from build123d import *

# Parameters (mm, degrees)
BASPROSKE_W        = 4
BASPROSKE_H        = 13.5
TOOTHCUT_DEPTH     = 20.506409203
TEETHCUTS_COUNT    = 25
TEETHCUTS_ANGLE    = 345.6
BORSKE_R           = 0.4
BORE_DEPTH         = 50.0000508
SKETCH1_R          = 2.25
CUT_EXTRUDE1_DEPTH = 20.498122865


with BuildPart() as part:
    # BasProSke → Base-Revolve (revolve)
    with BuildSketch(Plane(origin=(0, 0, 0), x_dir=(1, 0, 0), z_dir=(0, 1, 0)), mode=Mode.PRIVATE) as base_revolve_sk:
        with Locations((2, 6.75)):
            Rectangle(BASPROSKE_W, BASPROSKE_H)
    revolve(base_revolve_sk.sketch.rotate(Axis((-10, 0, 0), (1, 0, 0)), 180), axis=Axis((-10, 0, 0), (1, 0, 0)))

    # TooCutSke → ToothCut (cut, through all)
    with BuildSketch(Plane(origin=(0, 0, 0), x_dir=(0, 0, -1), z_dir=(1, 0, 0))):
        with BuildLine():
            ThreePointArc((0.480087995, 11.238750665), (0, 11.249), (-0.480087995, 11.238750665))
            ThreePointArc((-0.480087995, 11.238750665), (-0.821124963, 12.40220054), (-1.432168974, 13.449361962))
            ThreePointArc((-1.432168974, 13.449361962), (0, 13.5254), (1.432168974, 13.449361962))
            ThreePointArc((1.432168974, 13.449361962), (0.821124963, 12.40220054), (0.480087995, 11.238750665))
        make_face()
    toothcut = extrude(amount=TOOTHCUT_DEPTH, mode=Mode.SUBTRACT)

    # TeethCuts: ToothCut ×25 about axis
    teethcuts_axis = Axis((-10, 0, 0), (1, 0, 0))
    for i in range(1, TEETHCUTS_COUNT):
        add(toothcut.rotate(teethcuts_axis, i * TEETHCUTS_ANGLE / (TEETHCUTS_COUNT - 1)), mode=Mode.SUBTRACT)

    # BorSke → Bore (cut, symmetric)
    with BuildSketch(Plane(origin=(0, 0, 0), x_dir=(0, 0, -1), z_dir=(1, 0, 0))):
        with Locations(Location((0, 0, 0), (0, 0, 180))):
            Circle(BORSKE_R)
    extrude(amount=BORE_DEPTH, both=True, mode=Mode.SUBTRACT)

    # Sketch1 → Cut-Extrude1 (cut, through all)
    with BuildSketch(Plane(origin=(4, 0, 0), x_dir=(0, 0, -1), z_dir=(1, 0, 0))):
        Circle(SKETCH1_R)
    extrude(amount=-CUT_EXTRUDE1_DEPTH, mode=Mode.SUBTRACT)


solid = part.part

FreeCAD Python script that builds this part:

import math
import FreeCAD as App
import Part
import Sketcher

V = App.Vector
Q = App.Units.Quantity


def add_polygon(sketch, points):
    """Adds a closed chain of lines whose ends are joined by coincident constraints."""
    first, n = sketch.GeometryCount, len(points)
    for a, b in zip(points, points[1:] + points[:1]):
        sketch.addGeometry(Part.LineSegment(App.Vector(*a, 0), App.Vector(*b, 0)), False)
    for i in range(n):
        sketch.addConstraint(Sketcher.Constraint("Coincident", first + i, 2, first + (i + 1) % n, 1))

doc = App.newDocument("Part")
body = doc.addObject("PartDesign::Body", "Body")

# Sketch on XZ plane
sketch1 = body.newObject("Sketcher::SketchObject", "Sketch")
sketch1.AttachmentSupport = (doc.getObject("XZ_Plane"), [""])
sketch1.MapMode = "FlatFace"
add_polygon(sketch1, [(0, -13.5), (0, 0), (4, 0), (4, -13.5)])  # lines 0-3
sketch1.addConstraint([
    Sketcher.Constraint("Vertical", 0),
    Sketcher.Constraint("Horizontal", 1),
    Sketcher.Constraint("Vertical", 2),
    Sketcher.Constraint("Horizontal", 3),
    Sketcher.Constraint("Coincident", 0, 2, -1, 1),
    Sketcher.Constraint("DistanceX", 1, 1, 1, 2, Q("4 mm")),
    Sketcher.Constraint("DistanceY", 0, 1, 0, 2, Q("13.5 mm")),
])
revolution = body.newObject("PartDesign::Revolution", "Revolution")
revolution.Profile = sketch1
revolution.ReferenceAxis = (sketch1, ["H_Axis"])
revolution.Angle = 360

# Sketch on YZ plane
sketch2 = body.newObject("Sketcher::SketchObject", "Sketch001")
sketch2.AttachmentSupport = (doc.getObject("YZ_Plane"), [""])
sketch2.MapMode = "FlatFace"
sketch2.addGeometry([
    Part.ArcOfCircle(Part.Circle(V(0, 0, 0), V(0, 0, 1), 11.2), math.radians(-2.45), math.radians(2.45)),
    Part.ArcOfCircle(Part.Circle(V(10.4, -5.4, 0), V(0, 0, 1), 5), math.radians(53), math.radians(81)),
    Part.ArcOfCircle(Part.Circle(V(0, 0, 0), V(0, 0, 1), 13.5), math.radians(-6.08), math.radians(6.08)),
    Part.ArcOfCircle(Part.Circle(V(10.4, 5.4, 0), V(0, 0, 1), 5), math.radians(-81), math.radians(-53)),
], False)
sketch2.addConstraint([
    Sketcher.Constraint("Coincident", 0, 1, 1, 2),
    Sketcher.Constraint("Coincident", 1, 1, 2, 1),
    Sketcher.Constraint("Coincident", 2, 2, 3, 2),
    Sketcher.Constraint("Coincident", 3, 1, 0, 2),
    Sketcher.Constraint("Coincident", 0, 3, -1, 1),
    Sketcher.Constraint("Coincident", 2, 3, -1, 1),
    Sketcher.Constraint("Equal", 1, 3),
    Sketcher.Constraint("Symmetric", 1, 3, 3, 3, -1),
    Sketcher.Constraint("Radius", 1, Q("5 mm")),
    Sketcher.Constraint("Radius", 0, Q("11.249 mm")),
    Sketcher.Constraint("Radius", 2, Q("13.5254 mm")),
    Sketcher.Constraint("DistanceX", -1, 1, 1, 3, Q("10.424401 mm")),
    Sketcher.Constraint("DistanceX", -1, 1, 0, 1, Q("11.238751 mm")),
])
pocket1 = body.newObject("PartDesign::Pocket", "Pocket")
pocket1.Profile = sketch2
pocket1.Type = "ThroughAll"
pocket1.Reversed = True
doc.recompute()

polarpattern = body.newObject("PartDesign::PolarPattern", "PolarPattern")
polarpattern.Originals = [pocket1]
polarpattern.Axis = (doc.getObject("X_Axis"), [""])
polarpattern.Angle = 360
polarpattern.Occurrences = 25
body.Tip = polarpattern

# Sketch on YZ plane
sketch3 = body.newObject("Sketcher::SketchObject", "Sketch002")
sketch3.AttachmentSupport = (doc.getObject("YZ_Plane"), [""])
sketch3.MapMode = "FlatFace"
sketch3.addGeometry(Part.Circle(V(0, 0, 0), V(0, 0, 1), 0.4), False)
sketch3.addConstraint([
    Sketcher.Constraint("Coincident", 0, 3, -1, 1),
    Sketcher.Constraint("Diameter", 0, Q("0.8 mm")),
])
pocket2 = body.newObject("PartDesign::Pocket", "Pocket001")
pocket2.Profile = sketch3
pocket2.Length = 100.000102
pocket2.Midplane = True

# Sketch on YZ plane
sketch4 = body.newObject("Sketcher::SketchObject", "Sketch003")
sketch4.AttachmentSupport = (doc.getObject("YZ_Plane"), [""])
sketch4.MapMode = "FlatFace"
sketch4.AttachmentOffset = App.Placement(V(0, 0, 4), App.Rotation())
sketch4.addGeometry(Part.Circle(V(0, 0, 0), V(0, 0, 1), 2.2), False)
sketch4.addConstraint([
    Sketcher.Constraint("Coincident", 0, 3, -1, 1),
    Sketcher.Constraint("Diameter", 0, Q("4.5 mm")),
])
pocket3 = body.newObject("PartDesign::Pocket", "Pocket002")
pocket3.Profile = sketch4
pocket3.Type = "ThroughAll"

doc.recompute()
